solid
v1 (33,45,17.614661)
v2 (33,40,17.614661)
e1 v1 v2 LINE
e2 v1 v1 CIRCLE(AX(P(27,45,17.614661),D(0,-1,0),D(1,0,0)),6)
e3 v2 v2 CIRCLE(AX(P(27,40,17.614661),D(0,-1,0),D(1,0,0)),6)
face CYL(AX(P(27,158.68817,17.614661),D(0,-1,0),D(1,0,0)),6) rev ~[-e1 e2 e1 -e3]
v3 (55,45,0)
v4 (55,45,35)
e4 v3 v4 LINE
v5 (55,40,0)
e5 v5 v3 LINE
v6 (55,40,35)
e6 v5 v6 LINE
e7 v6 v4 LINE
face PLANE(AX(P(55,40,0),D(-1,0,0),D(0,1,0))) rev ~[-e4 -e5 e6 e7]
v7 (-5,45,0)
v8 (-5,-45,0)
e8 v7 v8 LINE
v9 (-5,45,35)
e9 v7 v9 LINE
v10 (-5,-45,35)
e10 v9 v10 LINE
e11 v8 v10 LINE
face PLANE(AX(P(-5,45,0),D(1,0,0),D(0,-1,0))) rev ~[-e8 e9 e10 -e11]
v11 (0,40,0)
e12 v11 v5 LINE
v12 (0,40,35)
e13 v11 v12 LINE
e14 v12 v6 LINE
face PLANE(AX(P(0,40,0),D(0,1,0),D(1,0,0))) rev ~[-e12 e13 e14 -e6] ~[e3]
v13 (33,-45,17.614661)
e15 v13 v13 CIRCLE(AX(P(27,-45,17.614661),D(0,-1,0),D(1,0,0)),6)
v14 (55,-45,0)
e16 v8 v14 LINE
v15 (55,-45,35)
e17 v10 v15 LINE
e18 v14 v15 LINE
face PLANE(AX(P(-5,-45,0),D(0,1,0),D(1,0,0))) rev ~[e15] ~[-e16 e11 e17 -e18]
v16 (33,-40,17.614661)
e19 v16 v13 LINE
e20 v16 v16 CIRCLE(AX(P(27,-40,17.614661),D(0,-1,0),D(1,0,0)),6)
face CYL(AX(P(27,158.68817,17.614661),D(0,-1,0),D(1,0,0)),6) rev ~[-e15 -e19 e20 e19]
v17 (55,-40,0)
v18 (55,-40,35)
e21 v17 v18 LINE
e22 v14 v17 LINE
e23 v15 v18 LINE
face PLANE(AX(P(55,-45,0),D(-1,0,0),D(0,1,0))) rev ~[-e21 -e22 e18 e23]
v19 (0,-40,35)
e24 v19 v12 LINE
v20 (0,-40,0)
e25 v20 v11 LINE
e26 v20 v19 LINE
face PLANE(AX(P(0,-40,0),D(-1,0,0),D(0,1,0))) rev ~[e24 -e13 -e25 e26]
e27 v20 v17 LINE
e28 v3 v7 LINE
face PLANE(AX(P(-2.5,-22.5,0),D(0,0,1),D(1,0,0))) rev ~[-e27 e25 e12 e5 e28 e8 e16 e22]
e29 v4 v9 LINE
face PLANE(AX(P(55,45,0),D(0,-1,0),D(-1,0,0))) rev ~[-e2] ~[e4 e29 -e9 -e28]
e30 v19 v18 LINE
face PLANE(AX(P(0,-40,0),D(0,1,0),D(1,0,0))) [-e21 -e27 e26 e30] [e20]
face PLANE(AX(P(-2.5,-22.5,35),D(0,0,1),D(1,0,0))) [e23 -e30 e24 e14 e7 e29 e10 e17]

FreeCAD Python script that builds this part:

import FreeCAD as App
import Part
import Sketcher

V = App.Vector
Q = App.Units.Quantity


def add_polygon(sketch, points):
    """Adds a closed chain of lines whose ends are joined by coincident constraints."""
    first, n = sketch.GeometryCount, len(points)
    for a, b in zip(points, points[1:] + points[:1]):
        sketch.addGeometry(Part.LineSegment(App.Vector(*a, 0), App.Vector(*b, 0)), False)
    for i in range(n):
        sketch.addConstraint(Sketcher.Constraint("Coincident", first + i, 2, first + (i + 1) % n, 1))

doc = App.newDocument("Part")
params = doc.addObject("Spreadsheet::Sheet", "Params")
for row, (alias, value) in enumerate([
    ("sketch1_width", "60 mm"),
    ("sketch1_width2", "55 mm"),
    ("sketch1_height", "5 mm"),
    ("sketch1_height2", "80 mm"),
    ("pad1_length", "35 mm"),
    ("sketch2_diameter", "12 mm"),
    ("hole_diameter", "12 mm"),
], start=1):
    params.set(f"A{row}", alias)
    params.set(f"B{row}", "=" + value)
    params.setAlias(f"B{row}", alias)

body = doc.addObject("PartDesign::Body", "Body")

# Sketch on XY plane
sketch1 = body.newObject("Sketcher::SketchObject", "Sketch")
sketch1.AttachmentSupport = (doc.getObject("XY_Plane"), [""])
sketch1.MapMode = "FlatFace"
add_polygon(sketch1, [(-5, -45), (55, -45), (55, -40), (0, -40), (0, 40), (55, 40), (55, 45), (-5, 45)])  # lines 0-7
sketch1.addConstraint(Sketcher.Constraint("Horizontal", 0))
sketch1.addConstraint(Sketcher.Constraint("Vertical", 1))
sketch1.addConstraint(Sketcher.Constraint("Horizontal", 2))
sketch1.addConstraint(Sketcher.Constraint("Vertical", 3))
sketch1.addConstraint(Sketcher.Constraint("Horizontal", 4))
sketch1.addConstraint(Sketcher.Constraint("Vertical", 5))
sketch1.addConstraint(Sketcher.Constraint("Horizontal", 6))
sketch1.addConstraint(Sketcher.Constraint("Vertical", 7))
sketch1.addConstraint(Sketcher.Constraint("Symmetric", 2, 2, 3, 2, -1, 1))
sketch1.addConstraint(Sketcher.Constraint("Symmetric", 0, 2, 5, 2, -1))
sketch1.addConstraint(Sketcher.Constraint("DistanceX", 0, 1, 0, 2, Q("60 mm")))
sketch1.addConstraint(Sketcher.Constraint("DistanceX", 2, 2, 2, 1, Q("55 mm")))
sketch1.addConstraint(Sketcher.Constraint("DistanceY", 1, 1, 1, 2, Q("5 mm")))
sketch1.addConstraint(Sketcher.Constraint("DistanceY", 3, 1, 3, 2, Q("80 mm")))
sketch1.setExpression("Constraints[18]", "Params.sketch1_width")
sketch1.setExpression("Constraints[19]", "Params.sketch1_width2")
sketch1.setExpression("Constraints[20]", "Params.sketch1_height")
sketch1.setExpression("Constraints[21]", "Params.sketch1_height2")
pad1 = body.newObject("PartDesign::Pad", "Pad")
pad1.Profile = sketch1
pad1.setExpression("Length", "Params.pad1_length")

# Sketch on XZ plane
sketch2 = body.newObject("Sketcher::SketchObject", "Sketch001")
sketch2.AttachmentSupport = (doc.getObject("XZ_Plane"), [""])
sketch2.MapMode = "FlatFace"
sketch2.AttachmentOffset = App.Placement(V(0, 0, -45), App.Rotation())
sketch2.addGeometry(Part.Circle(V(27, 17.614661, 0), V(0, 0, 1), 6), False)
sketch2.addConstraint(Sketcher.Constraint("Diameter", 0, Q("12 mm")))
sketch2.addConstraint(Sketcher.Constraint("DistanceX", -1, 1, 0, 3, Q("27 mm")))
sketch2.addConstraint(Sketcher.Constraint("DistanceY", -1, 1, 0, 3, Q("17.614661 mm")))
sketch2.setExpression("Constraints[0]", "Params.sketch2_diameter")
doc.recompute()
hole = body.newObject("PartDesign::Hole", "Hole")
hole.Profile = sketch2
hole.ThreadType = "None"
hole.setExpression("Diameter", "Params.hole_diameter")
hole.DepthType = "ThroughAll"
hole.Reversed = True

doc.recompute()
